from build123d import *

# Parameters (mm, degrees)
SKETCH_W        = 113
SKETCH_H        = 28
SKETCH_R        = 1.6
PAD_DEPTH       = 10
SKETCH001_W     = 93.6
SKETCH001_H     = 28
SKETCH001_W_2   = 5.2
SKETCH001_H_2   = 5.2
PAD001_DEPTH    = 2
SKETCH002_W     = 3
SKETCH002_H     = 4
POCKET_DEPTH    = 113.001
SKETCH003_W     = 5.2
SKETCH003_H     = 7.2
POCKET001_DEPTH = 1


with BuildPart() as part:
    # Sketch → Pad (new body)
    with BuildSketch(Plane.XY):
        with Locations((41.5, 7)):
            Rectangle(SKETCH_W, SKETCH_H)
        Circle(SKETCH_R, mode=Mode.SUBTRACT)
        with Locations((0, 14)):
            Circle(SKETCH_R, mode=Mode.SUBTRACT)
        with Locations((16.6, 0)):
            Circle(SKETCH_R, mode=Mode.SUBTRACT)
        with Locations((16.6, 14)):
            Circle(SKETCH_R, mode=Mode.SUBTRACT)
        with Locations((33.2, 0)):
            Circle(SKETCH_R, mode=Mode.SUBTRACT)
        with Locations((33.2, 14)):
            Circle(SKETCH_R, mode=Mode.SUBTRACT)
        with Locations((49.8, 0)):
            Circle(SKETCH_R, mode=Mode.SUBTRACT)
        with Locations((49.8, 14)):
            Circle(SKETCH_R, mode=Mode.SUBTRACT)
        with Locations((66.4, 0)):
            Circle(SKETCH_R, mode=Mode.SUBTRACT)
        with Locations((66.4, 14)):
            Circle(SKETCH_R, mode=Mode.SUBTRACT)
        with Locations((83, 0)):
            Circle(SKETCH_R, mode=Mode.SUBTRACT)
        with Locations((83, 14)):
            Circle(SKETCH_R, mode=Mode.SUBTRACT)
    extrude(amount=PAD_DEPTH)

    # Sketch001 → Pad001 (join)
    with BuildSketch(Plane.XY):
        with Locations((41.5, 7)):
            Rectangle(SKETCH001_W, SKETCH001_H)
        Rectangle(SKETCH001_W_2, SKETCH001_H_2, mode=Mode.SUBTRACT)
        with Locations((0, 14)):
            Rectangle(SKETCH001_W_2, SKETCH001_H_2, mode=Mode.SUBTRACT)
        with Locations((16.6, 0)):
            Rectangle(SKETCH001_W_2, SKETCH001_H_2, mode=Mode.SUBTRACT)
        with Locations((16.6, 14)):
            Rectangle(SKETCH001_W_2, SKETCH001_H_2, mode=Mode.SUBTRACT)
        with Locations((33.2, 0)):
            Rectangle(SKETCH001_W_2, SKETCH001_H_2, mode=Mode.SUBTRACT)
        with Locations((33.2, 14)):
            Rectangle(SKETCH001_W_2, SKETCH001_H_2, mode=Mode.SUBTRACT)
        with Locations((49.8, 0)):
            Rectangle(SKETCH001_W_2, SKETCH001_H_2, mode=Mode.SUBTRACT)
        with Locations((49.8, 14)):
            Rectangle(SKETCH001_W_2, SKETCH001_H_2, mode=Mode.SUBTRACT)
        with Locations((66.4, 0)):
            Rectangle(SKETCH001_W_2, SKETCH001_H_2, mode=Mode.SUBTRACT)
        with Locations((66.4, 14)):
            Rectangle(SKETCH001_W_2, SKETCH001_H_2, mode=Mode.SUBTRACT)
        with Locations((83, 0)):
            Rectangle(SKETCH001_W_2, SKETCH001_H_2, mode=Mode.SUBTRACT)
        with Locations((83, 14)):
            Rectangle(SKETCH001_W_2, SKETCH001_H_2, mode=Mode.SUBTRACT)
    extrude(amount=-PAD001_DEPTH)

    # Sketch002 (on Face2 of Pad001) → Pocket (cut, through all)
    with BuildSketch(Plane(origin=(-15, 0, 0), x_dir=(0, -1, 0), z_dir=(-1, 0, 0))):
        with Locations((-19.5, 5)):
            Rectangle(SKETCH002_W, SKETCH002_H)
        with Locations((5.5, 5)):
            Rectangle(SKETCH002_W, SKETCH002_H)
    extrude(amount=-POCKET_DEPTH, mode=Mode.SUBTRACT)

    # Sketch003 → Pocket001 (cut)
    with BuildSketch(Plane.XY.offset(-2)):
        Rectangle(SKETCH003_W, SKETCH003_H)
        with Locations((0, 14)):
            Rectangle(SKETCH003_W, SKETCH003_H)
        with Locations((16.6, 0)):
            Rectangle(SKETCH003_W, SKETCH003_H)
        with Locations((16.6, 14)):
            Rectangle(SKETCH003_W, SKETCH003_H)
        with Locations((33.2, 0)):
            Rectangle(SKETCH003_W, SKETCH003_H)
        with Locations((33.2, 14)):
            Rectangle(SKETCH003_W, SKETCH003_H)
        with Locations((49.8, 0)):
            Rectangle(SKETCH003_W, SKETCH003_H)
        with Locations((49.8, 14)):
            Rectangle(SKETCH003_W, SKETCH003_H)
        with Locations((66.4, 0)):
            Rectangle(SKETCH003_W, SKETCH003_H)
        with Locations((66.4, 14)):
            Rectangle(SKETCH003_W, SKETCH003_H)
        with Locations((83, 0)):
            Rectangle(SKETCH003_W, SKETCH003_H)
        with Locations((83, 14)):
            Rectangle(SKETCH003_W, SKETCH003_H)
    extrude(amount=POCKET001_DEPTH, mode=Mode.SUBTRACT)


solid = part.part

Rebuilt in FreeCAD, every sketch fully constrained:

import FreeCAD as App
import Part
import Sketcher

doc = App.newDocument("Part")
body = doc.addObject("PartDesign::Body", "Body")

sketch1 = body.newObject("Sketcher::SketchObject", "Sketch")
sketch1.AttachmentSupport = (doc.getObject("XY_Plane"), [""])
sketch1.MapMode = "FlatFace"
sketch1.addGeometry([
    Part.LineSegment(App.Vector(-15, 21, 0), App.Vector(-15, -7, 0)),
    Part.LineSegment(App.Vector(-15, -7, 0), App.Vector(98, -7, 0)),
    Part.LineSegment(App.Vector(98, -7, 0), App.Vector(98, 21, 0)),
    Part.LineSegment(App.Vector(98, 21, 0), App.Vector(-15, 21, 0)),
    Part.Circle(App.Vector(0, 0, 0), App.Vector(0, 0, 1), 1.6),
    Part.Circle(App.Vector(16.6, 0, 0), App.Vector(0, 0, 1), 1.6),
    Part.Circle(App.Vector(33.2, 0, 0), App.Vector(0, 0, 1), 1.6),
    Part.Circle(App.Vector(49.8, 0, 0), App.Vector(0, 0, 1), 1.6),
    Part.Circle(App.Vector(66.4, 0, 0), App.Vector(0, 0, 1), 1.6),
    Part.Circle(App.Vector(83, 0, 0), App.Vector(0, 0, 1), 1.6),
    Part.Circle(App.Vector(0, 14, 0), App.Vector(0, 0, 1), 1.6),
    Part.Circle(App.Vector(16.6, 14, 0), App.Vector(0, 0, 1), 1.6),
    Part.Circle(App.Vector(33.2, 14, 0), App.Vector(0, 0, 1), 1.6),
    Part.Circle(App.Vector(49.8, 14, 0), App.Vector(0, 0, 1), 1.6),
    Part.Circle(App.Vector(66.4, 14, 0), App.Vector(0, 0, 1), 1.6),
    Part.Circle(App.Vector(83, 14, 0), App.Vector(0, 0, 1), 1.6),
], False)
sketch1.addConstraint([
    Sketcher.Constraint("Coincident", 0, 2, 1, 1),
    Sketcher.Constraint("Coincident", 1, 2, 2, 1),
    Sketcher.Constraint("Coincident", 2, 2, 3, 1),
    Sketcher.Constraint("Coincident", 3, 2, 0, 1),
    Sketcher.Constraint("Vertical", 0),
    Sketcher.Constraint("Horizontal", 1),
    Sketcher.Constraint("Vertical", 2),
    Sketcher.Constraint("Horizontal", 3),
    Sketcher.Constraint("Coincident", 4, 3, -1, 1),
    Sketcher.Constraint("Equal", 4, 5),
    Sketcher.Constraint("Equal", 5, 6),
    Sketcher.Constraint("Equal", 6, 7),
    Sketcher.Constraint("Equal", 7, 8),
    Sketcher.Constraint("Equal", 8, 9),
    Sketcher.Constraint("Equal", 9, 10),
    Sketcher.Constraint("Equal", 10, 11),
    Sketcher.Constraint("Equal", 11, 12),
    Sketcher.Constraint("Equal", 12, 13),
    Sketcher.Constraint("Equal", 13, 14),
    Sketcher.Constraint("Equal", 14, 15),
    Sketcher.Constraint("PointOnObject", 5, 3, -1),
    Sketcher.Constraint("PointOnObject", 6, 3, -1),
    Sketcher.Constraint("PointOnObject", 7, 3, -1),
    Sketcher.Constraint("PointOnObject", 8, 3, -1),
    Sketcher.Constraint("PointOnObject", 9, 3, -1),
    Sketcher.Constraint("PointOnObject", 10, 3, -2),
    Sketcher.Constraint("Horizontal", 10, 3, 11, 3),
    Sketcher.Constraint("Horizontal", 11, 3, 12, 3),
    Sketcher.Constraint("Horizontal", 12, 3, 13, 3),
    Sketcher.Constraint("Horizontal", 13, 3, 14, 3),
    Sketcher.Constraint("Horizontal", 14, 3, 15, 3),
    Sketcher.Constraint("Vertical", 5, 3, 11, 3),
    Sketcher.Constraint("Vertical", 6, 3, 12, 3),
    Sketcher.Constraint("Vertical", 7, 3, 13, 3),
    Sketcher.Constraint("Vertical", 8, 3, 14, 3),
    Sketcher.Constraint("Vertical", 9, 3, 15, 3),
    Sketcher.Constraint("Diameter", 4, 3.2),
    Sketcher.Constraint("DistanceX", 1, 1, 1, 2, 113.0),
    Sketcher.Constraint("DistanceY", 0, 2, 0, 1, 28.0),
    Sketcher.Constraint("DistanceX", -1, 1, 9, 3, 83.0),
    Sketcher.Constraint("DistanceY", -1, 1, 10, 3, 14.0),
    Sketcher.Constraint("DistanceX", 0, 2, -1, 1, 15.0),
    Sketcher.Constraint("DistanceY", 0, 2, -1, 1, 7.0),
    Sketcher.Constraint("DistanceX", -1, 1, 5, 3, 16.6),
    Sketcher.Constraint("DistanceX", -1, 1, 6, 3, 33.2),
    Sketcher.Constraint("DistanceX", -1, 1, 7, 3, 49.8),
    Sketcher.Constraint("DistanceX", -1, 1, 8, 3, 66.4),
])
pad1 = body.newObject("PartDesign::Pad", "Pad")
pad1.Profile = sketch1
pad1.Length = 10

sketch2 = body.newObject("Sketcher::SketchObject", "Sketch001")
sketch2.AttachmentSupport = (doc.getObject("XY_Plane"), [""])
sketch2.MapMode = "FlatFace"
sketch2.addGeometry([
    Part.LineSegment(App.Vector(-5, 21, 0), App.Vector(-5, -7, 0)),
    Part.LineSegment(App.Vector(-5, -7, 0), App.Vector(88, -7, 0)),
    Part.LineSegment(App.Vector(88, -7, 0), App.Vector(88, 21, 0)),
    Part.LineSegment(App.Vector(88, 21, 0), App.Vector(-5, 21, 0)),
    Part.LineSegment(App.Vector(3, -3, 0), App.Vector(-3, -3, 0)),
    Part.LineSegment(App.Vector(-3, -3, 0), App.Vector(-3, 3, 0)),
    Part.LineSegment(App.Vector(-3, 3, 0), App.Vector(3, 3, 0)),
    Part.LineSegment(App.Vector(3, 3, 0), App.Vector(3, -3, 0)),
    Part.LineSegment(App.Vector(19, -3, 0), App.Vector(14, -3, 0)),
    Part.LineSegment(App.Vector(14, -3, 0), App.Vector(14, 3, 0)),
    Part.LineSegment(App.Vector(14, 3, 0), App.Vector(19, 3, 0)),
    Part.LineSegment(App.Vector(19, 3, 0), App.Vector(19, -3, 0)),
    Part.LineSegment(App.Vector(36, -3, 0), App.Vector(31, -3, 0)),
    Part.LineSegment(App.Vector(31, -3, 0), App.Vector(31, 3, 0)),
    Part.LineSegment(App.Vector(31, 3, 0), App.Vector(36, 3, 0)),
    Part.LineSegment(App.Vector(36, 3, 0), App.Vector(36, -3, 0)),
    Part.LineSegment(App.Vector(52, -3, 0), App.Vector(47, -3, 0)),
    Part.LineSegment(App.Vector(47, -3, 0), App.Vector(47, 3, 0)),
    Part.LineSegment(App.Vector(47, 3, 0), App.Vector(52, 3, 0)),
    Part.LineSegment(App.Vector(52, 3, 0), App.Vector(52, -3, 0)),
    Part.LineSegment(App.Vector(69, -3, 0), App.Vector(64, -3, 0)),
    Part.LineSegment(App.Vector(64, -3, 0), App.Vector(64, 3, 0)),
    Part.LineSegment(App.Vector(64, 3, 0), App.Vector(69, 3, 0)),
    Part.LineSegment(App.Vector(69, 3, 0), App.Vector(69, -3, 0)),
    Part.LineSegment(App.Vector(86, -3, 0), App.Vector(80, -3, 0)),
    Part.LineSegment(App.Vector(80, -3, 0), App.Vector(80, 3, 0)),
    Part.LineSegment(App.Vector(80, 3, 0), App.Vector(86, 3, 0)),
    Part.LineSegment(App.Vector(86, 3, 0), App.Vector(86, -3, 0)),
    Part.LineSegment(App.Vector(3, 11, 0), App.Vector(-3, 11, 0)),
    Part.LineSegment(App.Vector(-3, 11, 0), App.Vector(-3, 17, 0)),
    Part.LineSegment(App.Vector(-3, 17, 0), App.Vector(3, 17, 0)),
    Part.LineSegment(App.Vector(3, 17, 0), App.Vector(3, 11, 0)),
    Part.LineSegment(App.Vector(19, 11, 0), App.Vector(14, 11, 0)),
    Part.LineSegment(App.Vector(14, 11, 0), App.Vector(14, 17, 0)),
    Part.LineSegment(App.Vector(14, 17, 0), App.Vector(19, 17, 0)),
    Part.LineSegment(App.Vector(19, 17, 0), App.Vector(19, 11, 0)),
    Part.LineSegment(App.Vector(36, 11, 0), App.Vector(31, 11, 0)),
    Part.LineSegment(App.Vector(31, 11, 0), App.Vector(31, 17, 0)),
    Part.LineSegment(App.Vector(31, 17, 0), App.Vector(36, 17, 0)),
    Part.LineSegment(App.Vector(36, 17, 0), App.Vector(36, 11, 0)),
    Part.LineSegment(App.Vector(52, 11, 0), App.Vector(47, 11, 0)),
    Part.LineSegment(App.Vector(47, 11, 0), App.Vector(47, 17, 0)),
    Part.LineSegment(App.Vector(47, 17, 0), App.Vector(52, 17, 0)),
    Part.LineSegment(App.Vector(52, 17, 0), App.Vector(52, 11, 0)),
    Part.LineSegment(App.Vector(69, 11, 0), App.Vector(64, 11, 0)),
    Part.LineSegment(App.Vector(64, 11, 0), App.Vector(64, 17, 0)),
    Part.LineSegment(App.Vector(64, 17, 0), App.Vector(69, 17, 0)),
    Part.LineSegment(App.Vector(69, 17, 0), App.Vector(69, 11, 0)),
    Part.LineSegment(App.Vector(86, 11, 0), App.Vector(80, 11, 0)),
    Part.LineSegment(App.Vector(80, 11, 0), App.Vector(80, 17, 0)),
    Part.LineSegment(App.Vector(80, 17, 0), App.Vector(86, 17, 0)),
    Part.LineSegment(App.Vector(86, 17, 0), App.Vector(86, 11, 0)),
], False)
sketch2.addConstraint([
    Sketcher.Constraint("Coincident", 0, 2, 1, 1),
    Sketcher.Constraint("Coincident", 1, 2, 2, 1),
    Sketcher.Constraint("Coincident", 2, 2, 3, 1),
    Sketcher.Constraint("Coincident", 3, 2, 0, 1),
    Sketcher.Constraint("Coincident", 4, 2, 5, 1),
    Sketcher.Constraint("Coincident", 5, 2, 6, 1),
    Sketcher.Constraint("Coincident", 6, 2, 7, 1),
    Sketcher.Constraint("Coincident", 7, 2, 4, 1),
    Sketcher.Constraint("Coincident", 8, 2, 9, 1),
    Sketcher.Constraint("Coincident", 9, 2, 10, 1),
    Sketcher.Constraint("Coincident", 10, 2, 11, 1),
    Sketcher.Constraint("Coincident", 11, 2, 8, 1),
    Sketcher.Constraint("Coincident", 12, 2, 13, 1),
    Sketcher.Constraint("Coincident", 13, 2, 14, 1),
    Sketcher.Constraint("Coincident", 14, 2, 15, 1),
    Sketcher.Constraint("Coincident", 15, 2, 12, 1),
    Sketcher.Constraint("Coincident", 16, 2, 17, 1),
    Sketcher.Constraint("Coincident", 17, 2, 18, 1),
    Sketcher.Constraint("Coincident", 18, 2, 19, 1),
    Sketcher.Constraint("Coincident", 19, 2, 16, 1),
    Sketcher.Constraint("Coincident", 20, 2, 21, 1),
    Sketcher.Constraint("Coincident", 21, 2, 22, 1),
    Sketcher.Constraint("Coincident", 22, 2, 23, 1),
    Sketcher.Constraint("Coincident", 23, 2, 20, 1),
    Sketcher.Constraint("Coincident", 24, 2, 25, 1),
    Sketcher.Constraint("Coincident", 25, 2, 26, 1),
    Sketcher.Constraint("Coincident", 26, 2, 27, 1),
    Sketcher.Constraint("Coincident", 27, 2, 24, 1),
    Sketcher.Constraint("Coincident", 28, 2, 29, 1),
    Sketcher.Constraint("Coincident", 29, 2, 30, 1),
    Sketcher.Constraint("Coincident", 30, 2, 31, 1),
    Sketcher.Constraint("Coincident", 31, 2, 28, 1),
    Sketcher.Constraint("Coincident", 32, 2, 33, 1),
    Sketcher.Constraint("Coincident", 33, 2, 34, 1),
    Sketcher.Constraint("Coincident", 34, 2, 35, 1),
    Sketcher.Constraint("Coincident", 35, 2, 32, 1),
    Sketcher.Constraint("Coincident", 36, 2, 37, 1),
    Sketcher.Constraint("Coincident", 37, 2, 38, 1),
    Sketcher.Constraint("Coincident", 38, 2, 39, 1),
    Sketcher.Constraint("Coincident", 39, 2, 36, 1),
    Sketcher.Constraint("Coincident", 40, 2, 41, 1),
    Sketcher.Constraint("Coincident", 41, 2, 42, 1),
    Sketcher.Constraint("Coincident", 42, 2, 43, 1),
    Sketcher.Constraint("Coincident", 43, 2, 40, 1),
    Sketcher.Constraint("Coincident", 44, 2, 45, 1),
    Sketcher.Constraint("Coincident", 45, 2, 46, 1),
    Sketcher.Constraint("Coincident", 46, 2, 47, 1),
    Sketcher.Constraint("Coincident", 47, 2, 44, 1),
    Sketcher.Constraint("Coincident", 48, 2, 49, 1),
    Sketcher.Constraint("Coincident", 49, 2, 50, 1),
    Sketcher.Constraint("Coincident", 50, 2, 51, 1),
    Sketcher.Constraint("Coincident", 51, 2, 48, 1),
    Sketcher.Constraint("Vertical", 0),
    Sketcher.Constraint("Horizontal", 1),
    Sketcher.Constraint("Vertical", 2),
    Sketcher.Constraint("Horizontal", 3),
    Sketcher.Constraint("Horizontal", 4),
    Sketcher.Constraint("Vertical", 5),
    Sketcher.Constraint("Horizontal", 6),
    Sketcher.Constraint("Vertical", 7),
    Sketcher.Constraint("Horizontal", 8),
    Sketcher.Constraint("Vertical", 9),
    Sketcher.Constraint("Horizontal", 10),
    Sketcher.Constraint("Vertical", 11),
    Sketcher.Constraint("Horizontal", 12),
    Sketcher.Constraint("Vertical", 13),
    Sketcher.Constraint("Horizontal", 14),
    Sketcher.Constraint("Vertical", 15),
    Sketcher.Constraint("Horizontal", 16),
    Sketcher.Constraint("Vertical", 17),
    Sketcher.Constraint("Horizontal", 18),
    Sketcher.Constraint("Vertical", 19),
    Sketcher.Constraint("Horizontal", 20),
    Sketcher.Constraint("Vertical", 21),
    Sketcher.Constraint("Horizontal", 22),
    Sketcher.Constraint("Vertical", 23),
    Sketcher.Constraint("Horizontal", 24),
    Sketcher.Constraint("Vertical", 25),
    Sketcher.Constraint("Horizontal", 26),
    Sketcher.Constraint("Vertical", 27),
    Sketcher.Constraint("Horizontal", 28),
    Sketcher.Constraint("Vertical", 29),
    Sketcher.Constraint("Horizontal", 30),
    Sketcher.Constraint("Vertical", 31),
    Sketcher.Constraint("Horizontal", 32),
    Sketcher.Constraint("Vertical", 33),
    Sketcher.Constraint("Horizontal", 34),
    Sketcher.Constraint("Vertical", 35),
    Sketcher.Constraint("Horizontal", 36),
    Sketcher.Constraint("Vertical", 37),
    Sketcher.Constraint("Horizontal", 38),
    Sketcher.Constraint("Vertical", 39),
    Sketcher.Constraint("Horizontal", 40),
    Sketcher.Constraint("Vertical", 41),
    Sketcher.Constraint("Horizontal", 42),
    Sketcher.Constraint("Vertical", 43),
    Sketcher.Constraint("Horizontal", 44),
    Sketcher.Constraint("Vertical", 45),
    Sketcher.Constraint("Horizontal", 46),
    Sketcher.Constraint("Vertical", 47),
    Sketcher.Constraint("Horizontal", 48),
    Sketcher.Constraint("Vertical", 49),
    Sketcher.Constraint("Horizontal", 50),
    Sketcher.Constraint("Vertical", 51),
    Sketcher.Constraint("Symmetric", 4, 2, 6, 2, -1, 1),
    Sketcher.Constraint("Horizontal", 7, 2, 8, 2),
    Sketcher.Constraint("Horizontal", 6, 2, 9, 2),
    Sketcher.Constraint("Horizontal", 11, 2, 12, 2),
    Sketcher.Constraint("Horizontal", 10, 2, 13, 2),
    Sketcher.Constraint("Horizontal", 15, 2, 16, 2),
    Sketcher.Constraint("Horizontal", 14, 2, 17, 2),
    Sketcher.Constraint("Horizontal", 19, 2, 20, 2),
    Sketcher.Constraint("Horizontal", 18, 2, 21, 2),
    Sketcher.Constraint("Horizontal", 23, 2, 24, 2),
    Sketcher.Constraint("Horizontal", 22, 2, 25, 2),
    Sketcher.Constraint("Horizontal", 31, 2, 32, 2),
    Sketcher.Constraint("Horizontal", 30, 2, 33, 2),
    Sketcher.Constraint("Horizontal", 35, 2, 36, 2),
    Sketcher.Constraint("Horizontal", 34, 2, 37, 2),
    Sketcher.Constraint("Horizontal", 39, 2, 40, 2),
    Sketcher.Constraint("Horizontal", 38, 2, 41, 2),
    Sketcher.Constraint("Horizontal", 43, 2, 44, 2),
    Sketcher.Constraint("Horizontal", 42, 2, 45, 2),
    Sketcher.Constraint("Horizontal", 47, 2, 48, 2),
    Sketcher.Constraint("Horizontal", 46, 2, 49, 2),
    Sketcher.Constraint("Vertical", 5, 2, 28, 2),
    Sketcher.Constraint("Vertical", 7, 2, 30, 2),
    Sketcher.Constraint("Vertical", 9, 2, 32, 2),
    Sketcher.Constraint("Vertical", 11, 2, 34, 2),
    Sketcher.Constraint("Vertical", 13, 2, 36, 2),
    Sketcher.Constraint("Vertical", 15, 2, 38, 2),
    Sketcher.Constraint("Vertical", 17, 2, 40, 2),
    Sketcher.Constraint("Vertical", 19, 2, 42, 2),
    Sketcher.Constraint("Vertical", 21, 2, 44, 2),
    Sketcher.Constraint("Vertical", 23, 2, 46, 2),
    Sketcher.Constraint("Vertical", 25, 2, 48, 2),
    Sketcher.Constraint("Vertical", 27, 2, 50, 2),
    Sketcher.Constraint("Equal", 6, 8),
    Sketcher.Constraint("Equal", 10, 12),
    Sketcher.Constraint("Equal", 14, 16),
    Sketcher.Constraint("Equal", 18, 20),
    Sketcher.Constraint("Equal", 22, 24),
    Sketcher.Constraint("Equal", 50, 5),
    Sketcher.Constraint("Equal", 27, 29),
    Sketcher.Constraint("DistanceY", 0, 2, 0, 1, 28.0),
    Sketcher.Constraint("DistanceX", 1, 1, 1, 2, 93.6),
    Sketcher.Constraint("DistanceX", 4, 2, 4, 1, 5.2),
    Sketcher.Constraint("DistanceY", 0, 2, -1, 1, 7.0),
    Sketcher.Constraint("DistanceX", -1, 1, 8, 2, 14.0),
    Sketcher.Constraint("DistanceX", -1, 1, 22, 2, 69.0),
    Sketcher.Constraint("DistanceX", 7, 2, 12, 2, 28.0),
    Sketcher.Constraint("DistanceX", 11, 2, 16, 2, 28.0),
    Sketcher.Constraint("DistanceY", 4, 2, 28, 2, 14.0),
    Sketcher.Constraint("DistanceX", 0, 2, -1, 1, 5.3),
    Sketcher.Constraint("DistanceX", -1, 1, 24, 2, 80.4),
])
pad2 = body.newObject("PartDesign::Pad", "Pad001")
pad2.Profile = sketch2
pad2.Length = 2
pad2.Reversed = True

sketch3 = body.newObject("Sketcher::SketchObject", "Sketch002")
sketch3.AttachmentSupport = (doc.getObject("YZ_Plane"), [""])
sketch3.MapMode = "FlatFace"
sketch3.AttachmentOffset = App.Placement(App.Vector(0, 0, -15), App.Rotation())
sketch3.addGeometry([
    Part.LineSegment(App.Vector(21, 7, 0), App.Vector(21, 3, 0)),
    Part.LineSegment(App.Vector(21, 3, 0), App.Vector(18, 3, 0)),
    Part.LineSegment(App.Vector(18, 3, 0), App.Vector(18, 7, 0)),
    Part.LineSegment(App.Vector(18, 7, 0), App.Vector(21, 7, 0)),
    Part.LineSegment(App.Vector(-4, 7, 0), App.Vector(-4, 3, 0)),
    Part.LineSegment(App.Vector(-4, 3, 0), App.Vector(-7, 3, 0)),
    Part.LineSegment(App.Vector(-7, 3, 0), App.Vector(-7, 7, 0)),
    Part.LineSegment(App.Vector(-7, 7, 0), App.Vector(-4, 7, 0)),
], False)
sketch3.addConstraint([
    Sketcher.Constraint("Coincident", 0, 2, 1, 1),
    Sketcher.Constraint("Coincident", 1, 2, 2, 1),
    Sketcher.Constraint("Coincident", 2, 2, 3, 1),
    Sketcher.Constraint("Coincident", 3, 2, 0, 1),
    Sketcher.Constraint("Coincident", 4, 2, 5, 1),
    Sketcher.Constraint("Coincident", 5, 2, 6, 1),
    Sketcher.Constraint("Coincident", 6, 2, 7, 1),
    Sketcher.Constraint("Coincident", 7, 2, 4, 1),
    Sketcher.Constraint("Vertical", 0),
    Sketcher.Constraint("Horizontal", 1),
    Sketcher.Constraint("Vertical", 2),
    Sketcher.Constraint("Horizontal", 3),
    Sketcher.Constraint("Vertical", 4),
    Sketcher.Constraint("Horizontal", 5),
    Sketcher.Constraint("Vertical", 6),
    Sketcher.Constraint("Horizontal", 7),
    Sketcher.Constraint("Horizontal", 1, 2, 4, 2),
    Sketcher.Constraint("Horizontal", 3, 2, 6, 2),
    Sketcher.Constraint("Equal", 3, 5),
    Sketcher.Constraint("DistanceX", 1, 2, 1, 1, 3.0),
    Sketcher.Constraint("DistanceY", 0, 2, 0, 1, 4.0),
    Sketcher.Constraint("DistanceX", -1, 1, 0, 2, 21.0),
    Sketcher.Constraint("DistanceY", -1, 1, 0, 2, 3.0),
    Sketcher.Constraint("DistanceX", 4, 2, -1, 1, 4.0),
])
pocket1 = body.newObject("PartDesign::Pocket", "Pocket")
pocket1.Profile = sketch3
pocket1.Type = "ThroughAll"
pocket1.Reversed = True

sketch4 = body.newObject("Sketcher::SketchObject", "Sketch003")
sketch4.AttachmentSupport = (doc.getObject("XY_Plane"), [""])
sketch4.MapMode = "FlatFace"
sketch4.AttachmentOffset = App.Placement(App.Vector(0, 0, -2), App.Rotation())
sketch4.addGeometry([
    Part.LineSegment(App.Vector(-3, 4, 0), App.Vector(-3, -4, 0)),
    Part.LineSegment(App.Vector(-3, -4, 0), App.Vector(3, -4, 0)),
    Part.LineSegment(App.Vector(3, -4, 0), App.Vector(3, 4, 0)),
    Part.LineSegment(App.Vector(3, 4, 0), App.Vector(-3, 4, 0)),
    Part.LineSegment(App.Vector(-3, 18, 0), App.Vector(-3, 10, 0)),
    Part.LineSegment(App.Vector(-3, 10, 0), App.Vector(3, 10, 0)),
    Part.LineSegment(App.Vector(3, 10, 0), App.Vector(3, 18, 0)),
    Part.LineSegment(App.Vector(3, 18, 0), App.Vector(-3, 18, 0)),
    Part.LineSegment(App.Vector(14, 4, 0), App.Vector(14, -4, 0)),
    Part.LineSegment(App.Vector(14, -4, 0), App.Vector(19, -4, 0)),
    Part.LineSegment(App.Vector(19, -4, 0), App.Vector(19, 4, 0)),
    Part.LineSegment(App.Vector(19, 4, 0), App.Vector(14, 4, 0)),
    Part.LineSegment(App.Vector(14, 18, 0), App.Vector(14, 10, 0)),
    Part.LineSegment(App.Vector(14, 10, 0), App.Vector(19, 10, 0)),
    Part.LineSegment(App.Vector(19, 10, 0), App.Vector(19, 18, 0)),
    Part.LineSegment(App.Vector(19, 18, 0), App.Vector(14, 18, 0)),
    Part.LineSegment(App.Vector(31, 4, 0), App.Vector(31, -4, 0)),
    Part.LineSegment(App.Vector(31, -4, 0), App.Vector(36, -4, 0)),
    Part.LineSegment(App.Vector(36, -4, 0), App.Vector(36, 4, 0)),
    Part.LineSegment(App.Vector(36, 4, 0), App.Vector(31, 4, 0)),
    Part.LineSegment(App.Vector(31, 18, 0), App.Vector(31, 10, 0)),
    Part.LineSegment(App.Vector(31, 10, 0), App.Vector(36, 10, 0)),
    Part.LineSegment(App.Vector(36, 10, 0), App.Vector(36, 18, 0)),
    Part.LineSegment(App.Vector(36, 18, 0), App.Vector(31, 18, 0)),
    Part.LineSegment(App.Vector(47, 4, 0), App.Vector(47, -4, 0)),
    Part.LineSegment(App.Vector(47, -4, 0), App.Vector(52, -4, 0)),
    Part.LineSegment(App.Vector(52, -4, 0), App.Vector(52, 4, 0)),
    Part.LineSegment(App.Vector(52, 4, 0), App.Vector(47, 4, 0)),
    Part.LineSegment(App.Vector(47, 18, 0), App.Vector(47, 10, 0)),
    Part.LineSegment(App.Vector(47, 10, 0), App.Vector(52, 10, 0)),
    Part.LineSegment(App.Vector(52, 10, 0), App.Vector(52, 18, 0)),
    Part.LineSegment(App.Vector(52, 18, 0), App.Vector(47, 18, 0)),
    Part.LineSegment(App.Vector(64, 4, 0), App.Vector(64, -4, 0)),
    Part.LineSegment(App.Vector(64, -4, 0), App.Vector(69, -4, 0)),
    Part.LineSegment(App.Vector(69, -4, 0), App.Vector(69, 4, 0)),
    Part.LineSegment(App.Vector(69, 4, 0), App.Vector(64, 4, 0)),
    Part.LineSegment(App.Vector(64, 18, 0), App.Vector(64, 10, 0)),
    Part.LineSegment(App.Vector(64, 10, 0), App.Vector(69, 10, 0)),
    Part.LineSegment(App.Vector(69, 10, 0), App.Vector(69, 18, 0)),
    Part.LineSegment(App.Vector(69, 18, 0), App.Vector(64, 18, 0)),
    Part.LineSegment(App.Vector(80, 4, 0), App.Vector(80, -4, 0)),
    Part.LineSegment(App.Vector(80, -4, 0), App.Vector(86, -4, 0)),
    Part.LineSegment(App.Vector(86, -4, 0), App.Vector(86, 4, 0)),
    Part.LineSegment(App.Vector(86, 4, 0), App.Vector(80, 4, 0)),
    Part.LineSegment(App.Vector(80, 18, 0), App.Vector(80, 10, 0)),
    Part.LineSegment(App.Vector(80, 10, 0), App.Vector(86, 10, 0)),
    Part.LineSegment(App.Vector(86, 10, 0), App.Vector(86, 18, 0)),
    Part.LineSegment(App.Vector(86, 18, 0), App.Vector(80, 18, 0)),
], False)
sketch4.addConstraint([
    Sketcher.Constraint("Coincident", 0, 2, 1, 1),
    Sketcher.Constraint("Coincident", 1, 2, 2, 1),
    Sketcher.Constraint("Coincident", 2, 2, 3, 1),
    Sketcher.Constraint("Coincident", 3, 2, 0, 1),
    Sketcher.Constraint("Coincident", 4, 2, 5, 1),
    Sketcher.Constraint("Coincident", 5, 2, 6, 1),
    Sketcher.Constraint("Coincident", 6, 2, 7, 1),
    Sketcher.Constraint("Coincident", 7, 2, 4, 1),
    Sketcher.Constraint("Coincident", 8, 2, 9, 1),
    Sketcher.Constraint("Coincident", 9, 2, 10, 1),
    Sketcher.Constraint("Coincident", 10, 2, 11, 1),
    Sketcher.Constraint("Coincident", 11, 2, 8, 1),
    Sketcher.Constraint("Coincident", 12, 2, 13, 1),
    Sketcher.Constraint("Coincident", 13, 2, 14, 1),
    Sketcher.Constraint("Coincident", 14, 2, 15, 1),
    Sketcher.Constraint("Coincident", 15, 2, 12, 1),
    Sketcher.Constraint("Coincident", 16, 2, 17, 1),
    Sketcher.Constraint("Coincident", 17, 2, 18, 1),
    Sketcher.Constraint("Coincident", 18, 2, 19, 1),
    Sketcher.Constraint("Coincident", 19, 2, 16, 1),
    Sketcher.Constraint("Coincident", 20, 2, 21, 1),
    Sketcher.Constraint("Coincident", 21, 2, 22, 1),
    Sketcher.Constraint("Coincident", 22, 2, 23, 1),
    Sketcher.Constraint("Coincident", 23, 2, 20, 1),
    Sketcher.Constraint("Coincident", 24, 2, 25, 1),
    Sketcher.Constraint("Coincident", 25, 2, 26, 1),
    Sketcher.Constraint("Coincident", 26, 2, 27, 1),
    Sketcher.Constraint("Coincident", 27, 2, 24, 1),
    Sketcher.Constraint("Coincident", 28, 2, 29, 1),
    Sketcher.Constraint("Coincident", 29, 2, 30, 1),
    Sketcher.Constraint("Coincident", 30, 2, 31, 1),
    Sketcher.Constraint("Coincident", 31, 2, 28, 1),
    Sketcher.Constraint("Coincident", 32, 2, 33, 1),
    Sketcher.Constraint("Coincident", 33, 2, 34, 1),
    Sketcher.Constraint("Coincident", 34, 2, 35, 1),
    Sketcher.Constraint("Coincident", 35, 2, 32, 1),
    Sketcher.Constraint("Coincident", 36, 2, 37, 1),
    Sketcher.Constraint("Coincident", 37, 2, 38, 1),
    Sketcher.Constraint("Coincident", 38, 2, 39, 1),
    Sketcher.Constraint("Coincident", 39, 2, 36, 1),
    Sketcher.Constraint("Coincident", 40, 2, 41, 1),
    Sketcher.Constraint("Coincident", 41, 2, 42, 1),
    Sketcher.Constraint("Coincident", 42, 2, 43, 1),
    Sketcher.Constraint("Coincident", 43, 2, 40, 1),
    Sketcher.Constraint("Coincident", 44, 2, 45, 1),
    Sketcher.Constraint("Coincident", 45, 2, 46, 1),
    Sketcher.Constraint("Coincident", 46, 2, 47, 1),
    Sketcher.Constraint("Coincident", 47, 2, 44, 1),
    Sketcher.Constraint("Vertical", 0),
    Sketcher.Constraint("Horizontal", 1),
    Sketcher.Constraint("Vertical", 2),
    Sketcher.Constraint("Horizontal", 3),
    Sketcher.Constraint("Vertical", 4),
    Sketcher.Constraint("Horizontal", 5),
    Sketcher.Constraint("Vertical", 6),
    Sketcher.Constraint("Horizontal", 7),
    Sketcher.Constraint("Vertical", 8),
    Sketcher.Constraint("Horizontal", 9),
    Sketcher.Constraint("Vertical", 10),
    Sketcher.Constraint("Horizontal", 11),
    Sketcher.Constraint("Vertical", 12),
    Sketcher.Constraint("Horizontal", 13),
    Sketcher.Constraint("Vertical", 14),
    Sketcher.Constraint("Horizontal", 15),
    Sketcher.Constraint("Vertical", 16),
    Sketcher.Constraint("Horizontal", 17),
    Sketcher.Constraint("Vertical", 18),
    Sketcher.Constraint("Horizontal", 19),
    Sketcher.Constraint("Vertical", 20),
    Sketcher.Constraint("Horizontal", 21),
    Sketcher.Constraint("Vertical", 22),
    Sketcher.Constraint("Horizontal", 23),
    Sketcher.Constraint("Vertical", 24),
    Sketcher.Constraint("Horizontal", 25),
    Sketcher.Constraint("Vertical", 26),
    Sketcher.Constraint("Horizontal", 27),
    Sketcher.Constraint("Vertical", 28),
    Sketcher.Constraint("Horizontal", 29),
    Sketcher.Constraint("Vertical", 30),
    Sketcher.Constraint("Horizontal", 31),
    Sketcher.Constraint("Vertical", 32),
    Sketcher.Constraint("Horizontal", 33),
    Sketcher.Constraint("Vertical", 34),
    Sketcher.Constraint("Horizontal", 35),
    Sketcher.Constraint("Vertical", 36),
    Sketcher.Constraint("Horizontal", 37),
    Sketcher.Constraint("Vertical", 38),
    Sketcher.Constraint("Horizontal", 39),
    Sketcher.Constraint("Vertical", 40),
    Sketcher.Constraint("Horizontal", 41),
    Sketcher.Constraint("Vertical", 42),
    Sketcher.Constraint("Horizontal", 43),
    Sketcher.Constraint("Vertical", 44),
    Sketcher.Constraint("Horizontal", 45),
    Sketcher.Constraint("Vertical", 46),
    Sketcher.Constraint("Horizontal", 47),
    Sketcher.Constraint("Symmetric", 0, 2, 2, 2, -1, 1),
    Sketcher.Constraint("Horizontal", 1, 2, 8, 2),
    Sketcher.Constraint("Horizontal", 3, 2, 10, 2),
    Sketcher.Constraint("Horizontal", 5, 2, 12, 2),
    Sketcher.Constraint("Horizontal", 7, 2, 14, 2),
    Sketcher.Constraint("Horizontal", 9, 2, 16, 2),
    Sketcher.Constraint("Horizontal", 11, 2, 18, 2),
    Sketcher.Constraint("Horizontal", 13, 2, 20, 2),
    Sketcher.Constraint("Horizontal", 15, 2, 22, 2),
    Sketcher.Constraint("Horizontal", 17, 2, 24, 2),
    Sketcher.Constraint("Horizontal", 19, 2, 26, 2),
    Sketcher.Constraint("Horizontal", 21, 2, 28, 2),
    Sketcher.Constraint("Horizontal", 23, 2, 30, 2),
    Sketcher.Constraint("Horizontal", 25, 2, 32, 2),
    Sketcher.Constraint("Horizontal", 27, 2, 34, 2),
    Sketcher.Constraint("Horizontal", 29, 2, 36, 2),
    Sketcher.Constraint("Horizontal", 31, 2, 38, 2),
    Sketcher.Constraint("Horizontal", 33, 2, 40, 2),
    Sketcher.Constraint("Horizontal", 35, 2, 42, 2),
    Sketcher.Constraint("Horizontal", 37, 2, 44, 2),
    Sketcher.Constraint("Horizontal", 39, 2, 46, 2),
    Sketcher.Constraint("Vertical", 3, 2, 4, 2),
    Sketcher.Constraint("Vertical", 2, 2, 5, 2),
    Sketcher.Constraint("Vertical", 11, 2, 12, 2),
    Sketcher.Constraint("Vertical", 10, 2, 13, 2),
    Sketcher.Constraint("Vertical", 19, 2, 20, 2),
    Sketcher.Constraint("Vertical", 18, 2, 21, 2),
    Sketcher.Constraint("Vertical", 27, 2, 28, 2),
    Sketcher.Constraint("Vertical", 26, 2, 29, 2),
    Sketcher.Constraint("Vertical", 35, 2, 36, 2),
    Sketcher.Constraint("Vertical", 34, 2, 37, 2),
    Sketcher.Constraint("Vertical", 43, 2, 44, 2),
    Sketcher.Constraint("Vertical", 42, 2, 45, 2),
    Sketcher.Constraint("Equal", 7, 9),
    Sketcher.Constraint("Equal", 15, 17),
    Sketcher.Constraint("Equal", 23, 25),
    Sketcher.Constraint("Equal", 31, 33),
    Sketcher.Constraint("Equal", 39, 41),
    Sketcher.Constraint("Equal", 2, 4),
    Sketcher.Constraint("DistanceX", 1, 1, 1, 2, 5.2),
    Sketcher.Constraint("DistanceY", 0, 2, 0, 1, 7.2),
    Sketcher.Constraint("DistanceX", -1, 1, 8, 2, 14.0),
    Sketcher.Constraint("DistanceX", -1, 1, 33, 2, 69.0),
    Sketcher.Constraint("DistanceY", 0, 2, 4, 2, 14.0),
    Sketcher.Constraint("DistanceX", -1, 1, 16, 2, 30.6),
    Sketcher.Constraint("DistanceX", -1, 1, 24, 2, 47.2),
    Sketcher.Constraint("DistanceX", -1, 1, 40, 2, 80.4),
])
pocket2 = body.newObject("PartDesign::Pocket", "Pocket001")
pocket2.Profile = sketch4
pocket2.Length = 1
pocket2.Reversed = True

doc.recompute()
